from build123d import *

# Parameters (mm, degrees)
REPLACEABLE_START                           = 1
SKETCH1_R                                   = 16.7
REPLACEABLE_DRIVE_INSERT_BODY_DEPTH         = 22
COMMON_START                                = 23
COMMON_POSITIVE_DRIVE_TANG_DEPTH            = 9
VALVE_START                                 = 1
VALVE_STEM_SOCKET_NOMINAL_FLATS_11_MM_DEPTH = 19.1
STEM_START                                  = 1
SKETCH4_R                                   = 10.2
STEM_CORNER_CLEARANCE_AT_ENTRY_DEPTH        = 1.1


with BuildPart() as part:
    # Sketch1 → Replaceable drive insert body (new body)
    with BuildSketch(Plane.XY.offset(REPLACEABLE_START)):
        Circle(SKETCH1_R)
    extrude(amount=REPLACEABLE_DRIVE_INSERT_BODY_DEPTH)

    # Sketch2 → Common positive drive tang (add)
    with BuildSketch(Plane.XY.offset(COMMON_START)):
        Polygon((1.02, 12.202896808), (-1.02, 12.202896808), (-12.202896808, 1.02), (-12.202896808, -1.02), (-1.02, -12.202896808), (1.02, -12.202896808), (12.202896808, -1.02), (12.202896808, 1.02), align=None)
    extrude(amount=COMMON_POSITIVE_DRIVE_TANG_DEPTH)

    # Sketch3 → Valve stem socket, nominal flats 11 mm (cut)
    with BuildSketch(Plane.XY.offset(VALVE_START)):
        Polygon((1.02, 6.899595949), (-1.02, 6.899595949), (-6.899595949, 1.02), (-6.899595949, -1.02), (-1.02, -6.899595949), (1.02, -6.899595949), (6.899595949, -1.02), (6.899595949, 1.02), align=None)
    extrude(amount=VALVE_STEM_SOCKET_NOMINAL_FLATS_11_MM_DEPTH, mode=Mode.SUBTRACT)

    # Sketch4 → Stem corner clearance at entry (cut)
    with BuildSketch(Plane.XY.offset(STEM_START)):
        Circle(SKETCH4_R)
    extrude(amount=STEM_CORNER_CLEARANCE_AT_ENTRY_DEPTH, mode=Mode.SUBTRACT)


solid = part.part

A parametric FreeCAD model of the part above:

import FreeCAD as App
import Part
import Sketcher

V = App.Vector


def add_polygon(sketch, points):
    """Adds a closed chain of lines whose ends are joined by coincident constraints."""
    first, n = sketch.GeometryCount, len(points)
    for a, b in zip(points, points[1:] + points[:1]):
        sketch.addGeometry(Part.LineSegment(App.Vector(*a, 0), App.Vector(*b, 0)), False)
    for i in range(n):
        sketch.addConstraint(Sketcher.Constraint("Coincident", first + i, 2, first + (i + 1) % n, 1))

doc = App.newDocument("Part")
body = doc.addObject("PartDesign::Body", "Body")

sketch1 = body.newObject("Sketcher::SketchObject", "Sketch")
sketch1.AttachmentSupport = (doc.getObject("XY_Plane"), [""])
sketch1.MapMode = "FlatFace"
sketch1.AttachmentOffset = App.Placement(V(0, 0, 1), App.Rotation())
sketch1.addGeometry(Part.Circle(V(0, 0, 0), V(0, 0, 1), 17), False)
sketch1.addConstraint(Sketcher.Constraint("Coincident", 0, 3, -1, 1))
sketch1.addConstraint(Sketcher.Constraint("Diameter", 0, 33.4))
pad1 = body.newObject("PartDesign::Pad", "Pad")
pad1.Profile = sketch1
pad1.Length = 22

sketch2 = body.newObject("Sketcher::SketchObject", "Sketch001")
sketch2.AttachmentSupport = (doc.getObject("XY_Plane"), [""])
sketch2.MapMode = "FlatFace"
sketch2.AttachmentOffset = App.Placement(V(0, 0, 23), App.Rotation())
add_polygon(sketch2, [(1, 12.2), (-1, 12.2), (-12.2, 1), (-12.2, -1), (-1, -12.2), (1, -12.2), (12.2, -1), (12.2, 1)])
sketch2.addConstraint(Sketcher.Constraint("Horizontal", 0))
sketch2.addConstraint(Sketcher.Constraint("Vertical", 2))
sketch2.addConstraint(Sketcher.Constraint("Horizontal", 4))
sketch2.addConstraint(Sketcher.Constraint("Vertical", 6))
sketch2.addConstraint(Sketcher.Constraint("Symmetric", 0, 2, 4, 2, -1, 1))
sketch2.addConstraint(Sketcher.Constraint("Symmetric", 1, 2, 5, 2, -1, 1))
sketch2.addConstraint(Sketcher.Constraint("Perpendicular", 1, 3))
sketch2.addConstraint(Sketcher.Constraint("Perpendicular", 5, 7))
sketch2.addConstraint(Sketcher.Constraint("Horizontal", 2, 2, 5, 2))
sketch2.addConstraint(Sketcher.Constraint("Horizontal", 1, 2, 6, 2))
sketch2.addConstraint(Sketcher.Constraint("Vertical", 0, 2, 3, 2))
sketch2.addConstraint(Sketcher.Constraint("Equal", 4, 2))
sketch2.addConstraint(Sketcher.Constraint("DistanceX", 0, 2, 0, 1, 2.04))
sketch2.addConstraint(Sketcher.Constraint("Distance", 1, 15.815004))
pad2 = body.newObject("PartDesign::Pad", "Pad001")
pad2.Profile = sketch2
pad2.Length = 9

sketch3 = body.newObject("Sketcher::SketchObject", "Sketch002")
sketch3.AttachmentSupport = (doc.getObject("XY_Plane"), [""])
sketch3.MapMode = "FlatFace"
sketch3.AttachmentOffset = App.Placement(V(0, 0, 1), App.Rotation())
add_polygon(sketch3, [(1, 6.9), (-1, 6.9), (-6.9, 1), (-6.9, -1), (-1, -6.9), (1, -6.9), (6.9, -1), (6.9, 1)])
sketch3.addConstraint(Sketcher.Constraint("Horizontal", 0))
sketch3.addConstraint(Sketcher.Constraint("Vertical", 2))
sketch3.addConstraint(Sketcher.Constraint("Horizontal", 4))
sketch3.addConstraint(Sketcher.Constraint("Vertical", 6))
sketch3.addConstraint(Sketcher.Constraint("Symmetric", 0, 2, 4, 2, -1, 1))
sketch3.addConstraint(Sketcher.Constraint("Symmetric", 1, 2, 5, 2, -1, 1))
sketch3.addConstraint(Sketcher.Constraint("Perpendicular", 1, 3))
sketch3.addConstraint(Sketcher.Constraint("Perpendicular", 5, 7))
sketch3.addConstraint(Sketcher.Constraint("Horizontal", 2, 2, 5, 2))
sketch3.addConstraint(Sketcher.Constraint("Horizontal", 1, 2, 6, 2))
sketch3.addConstraint(Sketcher.Constraint("Vertical", 0, 2, 3, 2))
sketch3.addConstraint(Sketcher.Constraint("Equal", 4, 2))
sketch3.addConstraint(Sketcher.Constraint("DistanceX", 0, 2, 0, 1, 2.04))
sketch3.addConstraint(Sketcher.Constraint("DistanceY", 3, 2, 0, 2, 13.799192))
pocket1 = body.newObject("PartDesign::Pocket", "Pocket")
pocket1.Profile = sketch3
pocket1.Length = 19.1
pocket1.Reversed = True

sketch4 = body.newObject("Sketcher::SketchObject", "Sketch003")
sketch4.AttachmentSupport = (doc.getObject("XY_Plane"), [""])
sketch4.MapMode = "FlatFace"
sketch4.AttachmentOffset = App.Placement(V(0, 0, 1), App.Rotation())
sketch4.addGeometry(Part.Circle(V(0, 0, 0), V(0, 0, 1), 10), False)
sketch4.addConstraint(Sketcher.Constraint("Coincident", 0, 3, -1, 1))
sketch4.addConstraint(Sketcher.Constraint("Diameter", 0, 20.4))
pocket2 = body.newObject("PartDesign::Pocket", "Pocket001")
pocket2.Profile = sketch4
pocket2.Length = 1.1
pocket2.Reversed = True

doc.recompute()
